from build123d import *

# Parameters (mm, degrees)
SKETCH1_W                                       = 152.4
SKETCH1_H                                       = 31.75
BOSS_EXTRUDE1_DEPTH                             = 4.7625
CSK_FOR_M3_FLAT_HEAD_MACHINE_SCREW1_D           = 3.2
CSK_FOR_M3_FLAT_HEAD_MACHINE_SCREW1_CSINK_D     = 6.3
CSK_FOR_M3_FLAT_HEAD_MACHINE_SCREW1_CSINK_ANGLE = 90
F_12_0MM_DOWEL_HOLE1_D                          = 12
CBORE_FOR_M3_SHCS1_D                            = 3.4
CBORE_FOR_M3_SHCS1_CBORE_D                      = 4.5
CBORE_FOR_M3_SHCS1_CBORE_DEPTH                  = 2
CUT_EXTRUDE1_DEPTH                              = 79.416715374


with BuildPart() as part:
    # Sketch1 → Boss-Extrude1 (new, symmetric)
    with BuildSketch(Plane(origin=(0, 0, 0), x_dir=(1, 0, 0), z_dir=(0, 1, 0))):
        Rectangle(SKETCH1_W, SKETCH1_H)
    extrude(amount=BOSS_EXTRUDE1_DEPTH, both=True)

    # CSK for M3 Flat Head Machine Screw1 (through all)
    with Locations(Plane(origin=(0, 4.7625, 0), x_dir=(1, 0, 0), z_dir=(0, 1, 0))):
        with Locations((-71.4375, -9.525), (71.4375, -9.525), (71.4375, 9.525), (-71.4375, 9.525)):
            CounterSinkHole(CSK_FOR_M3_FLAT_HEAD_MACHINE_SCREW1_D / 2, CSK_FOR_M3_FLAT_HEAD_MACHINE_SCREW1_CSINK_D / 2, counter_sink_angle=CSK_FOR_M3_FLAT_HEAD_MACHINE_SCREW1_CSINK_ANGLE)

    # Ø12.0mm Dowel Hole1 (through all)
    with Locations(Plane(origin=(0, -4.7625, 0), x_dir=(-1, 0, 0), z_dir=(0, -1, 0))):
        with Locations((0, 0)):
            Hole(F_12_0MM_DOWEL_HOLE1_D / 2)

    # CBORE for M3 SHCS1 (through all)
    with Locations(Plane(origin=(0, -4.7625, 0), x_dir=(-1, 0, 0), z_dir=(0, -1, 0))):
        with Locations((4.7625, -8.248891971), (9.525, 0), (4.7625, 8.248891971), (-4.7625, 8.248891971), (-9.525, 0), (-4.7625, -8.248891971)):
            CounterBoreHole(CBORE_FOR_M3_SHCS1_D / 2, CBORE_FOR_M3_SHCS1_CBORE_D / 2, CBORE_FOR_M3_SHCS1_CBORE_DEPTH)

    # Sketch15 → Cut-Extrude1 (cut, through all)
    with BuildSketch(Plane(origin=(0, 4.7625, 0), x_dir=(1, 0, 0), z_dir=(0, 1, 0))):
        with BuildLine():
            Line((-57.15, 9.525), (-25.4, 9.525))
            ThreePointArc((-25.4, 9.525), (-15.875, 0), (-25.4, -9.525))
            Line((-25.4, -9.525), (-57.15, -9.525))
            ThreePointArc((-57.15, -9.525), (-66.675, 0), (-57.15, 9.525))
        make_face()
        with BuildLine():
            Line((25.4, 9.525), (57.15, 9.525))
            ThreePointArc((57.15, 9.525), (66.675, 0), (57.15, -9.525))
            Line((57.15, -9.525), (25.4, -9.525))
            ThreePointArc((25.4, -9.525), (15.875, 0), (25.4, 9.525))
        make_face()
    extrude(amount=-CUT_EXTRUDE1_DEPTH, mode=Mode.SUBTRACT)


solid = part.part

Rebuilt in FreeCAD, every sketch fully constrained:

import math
import FreeCAD as App
import Part
import Sketcher
from FreeCAD import Vector
Q = App.Units.Quantity


def add_polygon(sketch, points):
    """Adds a closed chain of lines whose ends are joined by coincident constraints."""
    first, n = sketch.GeometryCount, len(points)
    for a, b in zip(points, points[1:] + points[:1]):
        sketch.addGeometry(Part.LineSegment(App.Vector(*a, 0), App.Vector(*b, 0)), False)
    for i in range(n):
        sketch.addConstraint(Sketcher.Constraint("Coincident", first + i, 2, first + (i + 1) % n, 1))

doc = App.newDocument("Part")
body = doc.addObject("PartDesign::Body", "Body")

sketch1 = body.newObject("Sketcher::SketchObject", "Sketch")
sketch1.AttachmentSupport = (doc.getObject("XZ_Plane"), [""])
sketch1.MapMode = "FlatFace"
add_polygon(sketch1, [(-76, -16), (-76, 16), (76, 16), (76, -16)])
sketch1.addConstraint(Sketcher.Constraint("Vertical", 0))
sketch1.addConstraint(Sketcher.Constraint("Horizontal", 1))
sketch1.addConstraint(Sketcher.Constraint("Vertical", 2))
sketch1.addConstraint(Sketcher.Constraint("Horizontal", 3))
sketch1.addConstraint(Sketcher.Constraint("Symmetric", 0, 2, 2, 2, -1, 1))
sketch1.addConstraint(Sketcher.Constraint("DistanceX", 1, 1, 1, 2, Q("6 in")))
sketch1.addConstraint(Sketcher.Constraint("DistanceY", 0, 1, 0, 2, Q("1.25 in")))
pad1 = body.newObject("PartDesign::Pad", "Pad")
pad1.Profile = sketch1
pad1.Length = Q("0.375 in")
pad1.Midplane = True

sketch2 = body.newObject("Sketcher::SketchObject", "Sketch001")
sketch2.AttachmentSupport = (doc.getObject("XZ_Plane"), [""])
sketch2.MapMode = "FlatFace"
sketch2.AttachmentOffset = App.Placement(Vector(0, 0, -0.1875 * 25.4), App.Rotation())
sketch2.addGeometry(Part.Circle(Vector(-71.4, 9.5, 0), Vector(0, 0, 1), 1.6), False)
sketch2.addGeometry(Part.Circle(Vector(71.4, 9.5, 0), Vector(0, 0, 1), 1.6), False)
sketch2.addGeometry(Part.Circle(Vector(71.4, -9.5, 0), Vector(0, 0, 1), 1.6), False)
sketch2.addGeometry(Part.Circle(Vector(-71.4, -9.5, 0), Vector(0, 0, 1), 1.6), False)
sketch2.addConstraint(Sketcher.Constraint("Equal", 0, 1))
sketch2.addConstraint(Sketcher.Constraint("Equal", 1, 2))
sketch2.addConstraint(Sketcher.Constraint("Equal", 2, 3))
sketch2.addConstraint(Sketcher.Constraint("Symmetric", 0, 3, 2, 3, -1, 1))
sketch2.addConstraint(Sketcher.Constraint("Symmetric", 1, 3, 3, 3, -1, 1))
sketch2.addConstraint(Sketcher.Constraint("Symmetric", 0, 3, 1, 3, -2))
sketch2.addConstraint(Sketcher.Constraint("Diameter", 0, 3.2))
sketch2.addConstraint(Sketcher.Constraint("DistanceY", 2, 3, 1, 3, Q("0.75 in")))
sketch2.addConstraint(Sketcher.Constraint("DistanceX", 0, 3, -1, 1, Q("2.8125 in")))
doc.recompute()
hole = body.newObject("PartDesign::Hole", "Hole")
hole.Profile = sketch2
hole.ThreadType = "None"
hole.Diameter = 3.2
hole.DepthType = "ThroughAll"
hole.HoleCutType = "Countersink"
hole.HoleCutDiameter = 6.3
hole.HoleCutCountersinkAngle = 90
hole.Reversed = True

sketch3 = body.newObject("Sketcher::SketchObject", "Sketch002")
sketch3.AttachmentSupport = (doc.getObject("XZ_Plane"), [""])
sketch3.MapMode = "FlatFace"
sketch3.AttachmentOffset = App.Placement(Vector(0, 0, 0.1875 * 25.4), App.Rotation())
sketch3.addGeometry(Part.Circle(Vector(0, 0, 0), Vector(0, 0, 1), 6), False)
sketch3.addConstraint(Sketcher.Constraint("Coincident", 0, 3, -1, 1))
sketch3.addConstraint(Sketcher.Constraint("Diameter", 0, 12.0))
doc.recompute()
hole2 = body.newObject("PartDesign::Hole", "Hole001")
hole2.Profile = sketch3
hole2.ThreadType = "None"
hole2.Diameter = 12
hole2.DepthType = "ThroughAll"

sketch4 = body.newObject("Sketcher::SketchObject", "Sketch003")
sketch4.AttachmentSupport = (doc.getObject("XZ_Plane"), [""])
sketch4.MapMode = "FlatFace"
sketch4.AttachmentOffset = App.Placement(Vector(0, 0, 0.1875 * 25.4), App.Rotation())
sketch4.addGeometry(Part.Circle(Vector(-4.8, 8.2, 0), Vector(0, 0, 1), 1.7), False)
sketch4.addGeometry(Part.Circle(Vector(-9.5, 0, 0), Vector(0, 0, 1), 1.7), False)
sketch4.addGeometry(Part.Circle(Vector(-4.8, -8.2, 0), Vector(0, 0, 1), 1.7), False)
sketch4.addGeometry(Part.Circle(Vector(4.8, -8.2, 0), Vector(0, 0, 1), 1.7), False)
sketch4.addGeometry(Part.Circle(Vector(9.5, 0, 0), Vector(0, 0, 1), 1.7), False)
sketch4.addGeometry(Part.Circle(Vector(4.8, 8.2, 0), Vector(0, 0, 1), 1.7), False)
sketch4.addConstraint(Sketcher.Constraint("Equal", 0, 1))
sketch4.addConstraint(Sketcher.Constraint("Equal", 1, 2))
sketch4.addConstraint(Sketcher.Constraint("Equal", 2, 3))
sketch4.addConstraint(Sketcher.Constraint("Equal", 3, 4))
sketch4.addConstraint(Sketcher.Constraint("Equal", 4, 5))
sketch4.addConstraint(Sketcher.Constraint("Symmetric", 0, 3, 3, 3, -1, 1))
sketch4.addConstraint(Sketcher.Constraint("Symmetric", 1, 3, 4, 3, -1, 1))
sketch4.addConstraint(Sketcher.Constraint("Symmetric", 2, 3, 5, 3, -1, 1))
sketch4.addConstraint(Sketcher.Constraint("Symmetric", 2, 3, 3, 3, -2))
sketch4.addConstraint(Sketcher.Constraint("PointOnObject", 1, 3, -1))
sketch4.addConstraint(Sketcher.Constraint("Diameter", 0, 3.4))
sketch4.addConstraint(Sketcher.Constraint("DistanceX", 1, 3, 4, 3, Q("0.75 in")))
sketch4.addConstraint(Sketcher.Constraint("DistanceX", 0, 3, -1, 1, Q("0.1875 in")))
sketch4.addConstraint(Sketcher.Constraint("DistanceY", -1, 1, 0, 3, 8.248892))
doc.recompute()
hole3 = body.newObject("PartDesign::Hole", "Hole002")
hole3.Profile = sketch4
hole3.ThreadType = "None"
hole3.Diameter = 3.4
hole3.DepthType = "ThroughAll"
hole3.HoleCutType = "Counterbore"
hole3.HoleCutDiameter = 4.5
hole3.HoleCutDepth = 2

sketch5 = body.newObject("Sketcher::SketchObject", "Sketch004")
sketch5.AttachmentSupport = (doc.getObject("XZ_Plane"), [""])
sketch5.MapMode = "FlatFace"
sketch5.AttachmentOffset = App.Placement(Vector(0, 0, -0.1875 * 25.4), App.Rotation())
sketch5.addGeometry(Part.LineSegment(Vector(-25, -10, 0), Vector(-57, -10, 0)), False)
sketch5.addGeometry(Part.ArcOfCircle(Part.Circle(Vector(-57, 0, 0), Vector(0, 0, 1), 10), math.radians(90), math.radians(270)), False)
sketch5.addGeometry(Part.LineSegment(Vector(-57, 10, 0), Vector(-25, 10, 0)), False)
sketch5.addGeometry(Part.ArcOfCircle(Part.Circle(Vector(-25, 0, 0), Vector(0, 0, 1), 10), math.radians(-90), math.radians(90)), False)
sketch5.addGeometry(Part.LineSegment(Vector(57, -10, 0), Vector(25, -10, 0)), False)
sketch5.addGeometry(Part.ArcOfCircle(Part.Circle(Vector(25, 0, 0), Vector(0, 0, 1), 10), math.radians(90), math.radians(270)), False)
sketch5.addGeometry(Part.LineSegment(Vector(25, 10, 0), Vector(57, 10, 0)), False)
sketch5.addGeometry(Part.ArcOfCircle(Part.Circle(Vector(57, 0, 0), Vector(0, 0, 1), 10), math.radians(-90), math.radians(90)), False)
sketch5.addConstraint(Sketcher.Constraint("Tangent", 0, 2, 1, 2))
sketch5.addConstraint(Sketcher.Constraint("Tangent", 1, 1, 2, 1))
sketch5.addConstraint(Sketcher.Constraint("Tangent", 2, 2, 3, 2))
sketch5.addConstraint(Sketcher.Constraint("Tangent", 3, 1, 0, 1))
sketch5.addConstraint(Sketcher.Constraint("Tangent", 4, 2, 5, 2))
sketch5.addConstraint(Sketcher.Constraint("Tangent", 5, 1, 6, 1))
sketch5.addConstraint(Sketcher.Constraint("Tangent", 6, 2, 7, 2))
sketch5.addConstraint(Sketcher.Constraint("Tangent", 7, 1, 4, 1))
sketch5.addConstraint(Sketcher.Constraint("Horizontal", 0))
sketch5.addConstraint(Sketcher.Constraint("Horizontal", 2))
sketch5.addConstraint(Sketcher.Constraint("Horizontal", 4))
sketch5.addConstraint(Sketcher.Constraint("Horizontal", 6))
sketch5.addConstraint(Sketcher.Constraint("Equal", 3, 5))
sketch5.addConstraint(Sketcher.Constraint("Symmetric", 3, 3, 5, 3, -1, 1))
sketch5.addConstraint(Sketcher.Constraint("Symmetric", 1, 3, 7, 3, -2))
sketch5.addConstraint(Sketcher.Constraint("DistanceX", 3, 3, -1, 1, Q("1 in")))
sketch5.addConstraint(Sketcher.Constraint("Radius", 1, Q("0.375 in")))
sketch5.addConstraint(Sketcher.Constraint("DistanceX", 0, 2, 0, 1, Q("1.25 in")))
pocket1 = body.newObject("PartDesign::Pocket", "Pocket")
pocket1.Profile = sketch5
pocket1.Type = "ThroughAll"
pocket1.Reversed = True

doc.recompute()
